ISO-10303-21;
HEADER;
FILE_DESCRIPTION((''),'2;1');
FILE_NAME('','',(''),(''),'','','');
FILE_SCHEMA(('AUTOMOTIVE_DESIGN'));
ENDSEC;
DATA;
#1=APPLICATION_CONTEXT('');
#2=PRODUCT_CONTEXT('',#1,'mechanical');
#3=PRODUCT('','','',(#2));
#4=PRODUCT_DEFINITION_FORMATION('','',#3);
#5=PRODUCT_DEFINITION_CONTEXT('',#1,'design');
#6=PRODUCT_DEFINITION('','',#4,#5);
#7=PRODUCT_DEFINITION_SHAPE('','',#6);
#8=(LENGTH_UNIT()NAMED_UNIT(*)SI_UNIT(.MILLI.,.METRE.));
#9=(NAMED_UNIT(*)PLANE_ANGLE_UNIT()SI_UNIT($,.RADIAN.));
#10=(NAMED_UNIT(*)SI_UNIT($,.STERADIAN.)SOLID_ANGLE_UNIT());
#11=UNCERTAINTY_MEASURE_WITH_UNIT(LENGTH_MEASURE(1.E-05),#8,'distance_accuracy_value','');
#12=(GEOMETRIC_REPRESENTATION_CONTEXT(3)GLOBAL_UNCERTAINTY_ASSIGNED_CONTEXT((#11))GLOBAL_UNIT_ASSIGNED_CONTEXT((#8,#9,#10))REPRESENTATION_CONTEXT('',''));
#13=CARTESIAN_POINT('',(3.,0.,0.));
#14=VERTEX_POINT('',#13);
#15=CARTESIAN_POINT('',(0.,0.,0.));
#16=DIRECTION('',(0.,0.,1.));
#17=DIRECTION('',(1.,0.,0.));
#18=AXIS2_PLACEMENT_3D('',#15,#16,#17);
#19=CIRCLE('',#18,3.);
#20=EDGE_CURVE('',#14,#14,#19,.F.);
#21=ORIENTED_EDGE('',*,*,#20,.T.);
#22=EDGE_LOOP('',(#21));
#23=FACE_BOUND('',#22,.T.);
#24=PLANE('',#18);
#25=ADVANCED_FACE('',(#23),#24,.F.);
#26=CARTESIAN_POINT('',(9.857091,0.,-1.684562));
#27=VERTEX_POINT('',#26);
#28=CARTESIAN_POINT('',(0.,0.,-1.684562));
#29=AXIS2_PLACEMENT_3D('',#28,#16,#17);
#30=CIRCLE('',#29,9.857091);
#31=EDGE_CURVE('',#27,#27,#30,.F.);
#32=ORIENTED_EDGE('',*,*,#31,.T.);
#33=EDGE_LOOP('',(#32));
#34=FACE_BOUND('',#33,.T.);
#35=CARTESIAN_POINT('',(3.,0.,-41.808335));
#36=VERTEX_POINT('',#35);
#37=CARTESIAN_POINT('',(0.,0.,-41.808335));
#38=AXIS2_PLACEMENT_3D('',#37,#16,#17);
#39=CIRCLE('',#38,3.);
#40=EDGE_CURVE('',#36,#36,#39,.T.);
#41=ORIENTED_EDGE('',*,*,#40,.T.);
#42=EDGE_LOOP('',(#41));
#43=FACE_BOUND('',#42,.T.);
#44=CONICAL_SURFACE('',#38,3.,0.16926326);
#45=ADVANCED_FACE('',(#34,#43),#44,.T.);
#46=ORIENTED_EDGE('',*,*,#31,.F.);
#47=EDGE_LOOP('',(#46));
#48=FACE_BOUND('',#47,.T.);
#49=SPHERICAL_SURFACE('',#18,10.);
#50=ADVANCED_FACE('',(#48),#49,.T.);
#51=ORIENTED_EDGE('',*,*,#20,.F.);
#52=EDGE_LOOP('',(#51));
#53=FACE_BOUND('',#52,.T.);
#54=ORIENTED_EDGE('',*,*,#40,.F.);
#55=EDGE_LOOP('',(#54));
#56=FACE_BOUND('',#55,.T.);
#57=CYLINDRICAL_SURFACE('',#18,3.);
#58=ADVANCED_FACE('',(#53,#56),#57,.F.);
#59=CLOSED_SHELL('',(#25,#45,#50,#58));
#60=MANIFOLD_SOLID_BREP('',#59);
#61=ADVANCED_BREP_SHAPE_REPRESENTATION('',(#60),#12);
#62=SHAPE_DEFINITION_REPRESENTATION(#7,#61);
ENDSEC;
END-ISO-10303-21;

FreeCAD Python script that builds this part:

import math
import FreeCAD as App
import Part
import Sketcher
from FreeCAD import Vector


def add_polygon(sketch, points):
    """Adds a closed chain of lines whose ends are joined by coincident constraints."""
    first, n = sketch.GeometryCount, len(points)
    for a, b in zip(points, points[1:] + points[:1]):
        sketch.addGeometry(Part.LineSegment(App.Vector(*a, 0), App.Vector(*b, 0)), False)
    for i in range(n):
        sketch.addConstraint(Sketcher.Constraint("Coincident", first + i, 2, first + (i + 1) % n, 1))

doc = App.newDocument("Part")
body = doc.addObject("PartDesign::Body", "Body")

# Sketch on XY plane
sketch1 = doc.addObject("Sketcher::SketchObject", "Sketch")
body.addObject(sketch1)
sketch1.AttachmentSupport = (doc.XY_Plane, [""])
sketch1.MapMode = "FlatFace"
sketch1.addGeometry([
    Part.LineSegment(Vector(4, -9, 0), Vector(-4, 9, 0)),
    Part.ArcOfCircle(Part.Circle(Vector(0, 0, 0), Vector(0, 0, 1), 10), math.radians(114), math.radians(294)),
], False)
sketch1.addGeometry(Part.LineSegment(Vector(4, -9, 0), Vector(-4, 9, 0)), True)  # axis
sketch1.addConstraint([
    Sketcher.Constraint("Coincident", 0, 1, 1, 2),
    Sketcher.Constraint("Coincident", 1, 1, 0, 2),
    Sketcher.Constraint("Coincident", 1, 3, -1, 1),
    Sketcher.Constraint("Coincident", 2, 1, 0, 1),
    Sketcher.Constraint("Coincident", 2, 2, 1, 1),
    Sketcher.Constraint("Radius", 1, 10.0),
    Sketcher.Constraint("DistanceX", -1, 1, 0, 1, 4.14324),
    Sketcher.Constraint("DistanceX", 1, 1, -1, 1, 4.14324),
])
revolution = doc.addObject("PartDesign::Revolution", "Revolution")
body.addObject(revolution)
revolution.Profile = sketch1
revolution.ReferenceAxis = (sketch1, ["Axis0"])
revolution.Angle = 360

# Sketch on XY plane
sketch2 = doc.addObject("Sketcher::SketchObject", "Sketch001")
body.addObject(sketch2)
sketch2.AttachmentSupport = (doc.XY_Plane, [""])
sketch2.MapMode = "FlatFace"
sketch2.addGeometry(Part.Circle(Vector(0, 0, 0), Vector(0, 0, 1), 3), False)
sketch2.addConstraint([
    Sketcher.Constraint("Coincident", 0, 3, -1, 1),
    Sketcher.Constraint("Diameter", 0, 6.0),
])
pocket1 = doc.addObject("PartDesign::Pocket", "Pocket")
body.addObject(pocket1)
pocket1.Profile = sketch2
pocket1.Type = "ThroughAll"

# Sketch on XY plane
sketch3 = doc.addObject("Sketcher::SketchObject", "Sketch002")
body.addObject(sketch3)
sketch3.AttachmentSupport = (doc.XY_Plane, [""])
sketch3.MapMode = "FlatFace"
sketch3.addGeometry(Part.Circle(Vector(0, 0, 0), Vector(0, 0, 1), 3), False)
sketch3.addConstraint([
    Sketcher.Constraint("Coincident", 0, 3, -1, 1),
    Sketcher.Constraint("Diameter", 0, 6.0),
])
pad1 = doc.addObject("PartDesign::Pad", "Pad")
body.addObject(pad1)
pad1.Profile = sketch3
pad1.Length = 40
pad1.Reversed = True

# Sketch on XZ plane
sketch4 = doc.addObject("Sketcher::SketchObject", "Sketch003")
body.addObject(sketch4)
sketch4.AttachmentSupport = (doc.XZ_Plane, [""])
sketch4.MapMode = "FlatFace"
add_polygon(sketch4, [(-10, -2), (-3, -1), (-3, -42)])  # lines 0-2
sketch4.addConstraint([
    Sketcher.Constraint("Vertical", 1),
    Sketcher.Constraint("Perpendicular", 0, 2),
    Sketcher.Constraint("DistanceX", 0, 2, -1, 1, 3.0),
    Sketcher.Constraint("DistanceY", 1, 2, 1, 1, 41.29564),
    Sketcher.Constraint("Distance", 2, 40.70549),
    Sketcher.Constraint("DistanceY", 2, 2, -1, 1, 1.684562),
])
revolution2 = doc.addObject("PartDesign::Revolution", "Revolution001")
body.addObject(revolution2)
revolution2.Profile = sketch4
revolution2.ReferenceAxis = (sketch4, ["V_Axis"])
revolution2.Angle = 360

# Sketch on XY plane
sketch5 = doc.addObject("Sketcher::SketchObject", "Sketch004")
body.addObject(sketch5)
sketch5.AttachmentSupport = (doc.XY_Plane, [""])
sketch5.MapMode = "FlatFace"
sketch5.AttachmentOffset = App.Placement(Vector(0, 0, -40), App.Rotation())
sketch5.addGeometry(Part.Circle(Vector(0, 0, 0), Vector(0, 0, 1), 3), False)
sketch5.addConstraint([
    Sketcher.Constraint("Coincident", 0, 3, -1, 1),
    Sketcher.Constraint("Diameter", 0, 6.0),
])
pocket2 = doc.addObject("PartDesign::Pocket", "Pocket001")
body.addObject(pocket2)
pocket2.Profile = sketch5
pocket2.Length = 40
pocket2.Reversed = True

doc.recompute()
